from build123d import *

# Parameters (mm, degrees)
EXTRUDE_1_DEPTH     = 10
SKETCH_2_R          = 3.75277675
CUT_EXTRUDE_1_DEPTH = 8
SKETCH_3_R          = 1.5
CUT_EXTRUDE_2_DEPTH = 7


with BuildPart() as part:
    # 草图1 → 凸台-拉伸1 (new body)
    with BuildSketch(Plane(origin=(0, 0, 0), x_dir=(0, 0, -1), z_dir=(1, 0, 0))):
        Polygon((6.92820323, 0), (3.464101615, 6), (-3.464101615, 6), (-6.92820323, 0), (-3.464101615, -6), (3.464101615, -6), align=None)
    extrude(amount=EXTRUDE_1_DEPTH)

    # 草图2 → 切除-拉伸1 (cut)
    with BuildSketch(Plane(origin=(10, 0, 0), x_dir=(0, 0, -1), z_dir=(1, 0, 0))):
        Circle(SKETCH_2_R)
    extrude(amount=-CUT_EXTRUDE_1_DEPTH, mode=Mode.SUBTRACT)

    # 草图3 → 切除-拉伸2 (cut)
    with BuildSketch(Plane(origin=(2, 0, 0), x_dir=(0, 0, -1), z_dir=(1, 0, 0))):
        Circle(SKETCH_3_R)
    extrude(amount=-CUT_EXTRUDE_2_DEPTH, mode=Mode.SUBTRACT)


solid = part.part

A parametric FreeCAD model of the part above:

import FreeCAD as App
import Part
import Sketcher

V = App.Vector
Q = App.Units.Quantity


def add_polygon(sketch, points):
    """Adds a closed chain of lines whose ends are joined by coincident constraints."""
    first, n = sketch.GeometryCount, len(points)
    for a, b in zip(points, points[1:] + points[:1]):
        sketch.addGeometry(Part.LineSegment(App.Vector(*a, 0), App.Vector(*b, 0)), False)
    for i in range(n):
        sketch.addConstraint(Sketcher.Constraint("Coincident", first + i, 2, first + (i + 1) % n, 1))

doc = App.newDocument("Part")
body = doc.addObject("PartDesign::Body", "Body")

# Sketch on YZ plane
sketch1 = body.newObject("Sketcher::SketchObject", "Sketch")
sketch1.AttachmentSupport = (doc.getObject("YZ_Plane"), [""])
sketch1.MapMode = "FlatFace"
add_polygon(sketch1, [(0, -7), (6, -3), (6, 3), (0, 7), (-6, 3), (-6, -3)])  # lines 0-5
sketch1.addConstraint([
    Sketcher.Constraint("Vertical", 1),
    Sketcher.Constraint("Vertical", 4),
    Sketcher.Constraint("Symmetric", 0, 2, 3, 2, -1, 1),
    Sketcher.Constraint("Symmetric", 2, 2, 5, 2, -1, 1),
    Sketcher.Constraint("PointOnObject", 2, 2, -2),
    Sketcher.Constraint("Parallel", 2, 5),
    Sketcher.Constraint("Horizontal", 1, 2, 3, 2),
    Sketcher.Constraint("Angle", 0, Q("30 deg")),
    Sketcher.Constraint("DistanceX", -1, 1, 0, 2, Q("6 mm")),
    Sketcher.Constraint("DistanceY", 0, 2, -1, 1, Q("3.464102 mm")),
])
pad1 = body.newObject("PartDesign::Pad", "Pad")
pad1.Profile = sketch1
pad1.Length = 10

# Sketch on YZ plane
sketch2 = body.newObject("Sketcher::SketchObject", "Sketch001")
sketch2.AttachmentSupport = (doc.getObject("YZ_Plane"), [""])
sketch2.MapMode = "FlatFace"
sketch2.AttachmentOffset = App.Placement(V(0, 0, 10), App.Rotation())
sketch2.addGeometry(Part.Circle(V(0, 0, 0), V(0, 0, 1), 3.8), False)
sketch2.addConstraint([
    Sketcher.Constraint("Coincident", 0, 3, -1, 1),
    Sketcher.Constraint("Diameter", 0, Q("7.505554 mm")),
])
pocket1 = body.newObject("PartDesign::Pocket", "Pocket")
pocket1.Profile = sketch2
pocket1.Length = 8

# Sketch on YZ plane
sketch3 = body.newObject("Sketcher::SketchObject", "Sketch002")
sketch3.AttachmentSupport = (doc.getObject("YZ_Plane"), [""])
sketch3.MapMode = "FlatFace"
sketch3.AttachmentOffset = App.Placement(V(0, 0, 2), App.Rotation())
sketch3.addGeometry(Part.Circle(V(0, 0, 0), V(0, 0, 1), 1.5), False)
sketch3.addConstraint([
    Sketcher.Constraint("Coincident", 0, 3, -1, 1),
    Sketcher.Constraint("Diameter", 0, Q("3 mm")),
])
pocket2 = body.newObject("PartDesign::Pocket", "Pocket001")
pocket2.Profile = sketch3
pocket2.Length = 7

doc.recompute()
